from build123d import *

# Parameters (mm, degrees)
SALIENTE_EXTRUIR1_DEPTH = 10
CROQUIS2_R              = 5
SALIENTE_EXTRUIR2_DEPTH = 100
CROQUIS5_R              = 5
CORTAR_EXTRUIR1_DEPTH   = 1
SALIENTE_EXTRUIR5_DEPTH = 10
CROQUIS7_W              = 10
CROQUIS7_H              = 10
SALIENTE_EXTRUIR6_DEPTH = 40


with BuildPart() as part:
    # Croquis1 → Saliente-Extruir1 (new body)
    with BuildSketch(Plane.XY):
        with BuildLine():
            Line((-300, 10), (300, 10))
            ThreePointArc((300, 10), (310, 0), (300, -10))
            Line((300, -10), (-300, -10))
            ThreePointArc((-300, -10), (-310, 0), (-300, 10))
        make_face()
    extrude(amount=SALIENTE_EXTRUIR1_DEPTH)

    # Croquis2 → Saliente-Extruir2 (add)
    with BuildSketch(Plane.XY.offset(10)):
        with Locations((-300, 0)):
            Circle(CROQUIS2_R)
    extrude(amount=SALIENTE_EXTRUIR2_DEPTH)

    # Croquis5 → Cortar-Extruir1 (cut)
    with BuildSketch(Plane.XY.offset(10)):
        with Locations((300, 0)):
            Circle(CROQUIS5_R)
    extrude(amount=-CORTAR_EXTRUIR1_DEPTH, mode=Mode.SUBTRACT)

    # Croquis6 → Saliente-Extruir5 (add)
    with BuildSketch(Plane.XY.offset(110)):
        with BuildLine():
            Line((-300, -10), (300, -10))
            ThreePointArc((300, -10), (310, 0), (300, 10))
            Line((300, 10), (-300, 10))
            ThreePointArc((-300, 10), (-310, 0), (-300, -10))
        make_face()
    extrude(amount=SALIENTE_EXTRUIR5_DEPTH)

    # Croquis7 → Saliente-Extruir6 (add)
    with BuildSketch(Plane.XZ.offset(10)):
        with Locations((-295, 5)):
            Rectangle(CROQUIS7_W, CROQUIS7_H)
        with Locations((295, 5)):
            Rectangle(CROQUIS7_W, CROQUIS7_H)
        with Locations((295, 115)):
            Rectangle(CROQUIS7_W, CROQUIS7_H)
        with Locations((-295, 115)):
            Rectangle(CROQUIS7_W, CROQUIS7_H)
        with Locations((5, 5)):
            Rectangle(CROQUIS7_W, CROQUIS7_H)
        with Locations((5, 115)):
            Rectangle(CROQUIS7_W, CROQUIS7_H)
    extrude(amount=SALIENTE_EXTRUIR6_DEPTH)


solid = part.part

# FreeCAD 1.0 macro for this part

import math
import FreeCAD as App
import Part
import Sketcher
from FreeCAD import Vector

doc = App.newDocument("Part")
body = doc.addObject("PartDesign::Body", "Body")

# Sketch on XY plane
sketch1 = body.newObject("Sketcher::SketchObject", "Sketch")
sketch1.AttachmentSupport = (doc.getObject("XY_Plane"), [""])
sketch1.MapMode = "FlatFace"
sketch1.addGeometry([
    Part.LineSegment(Vector(300, 10, 0), Vector(-300, 10, 0)),
    Part.ArcOfCircle(Part.Circle(Vector(-300, 0, 0), Vector(0, 0, 1), 10), math.radians(90), math.radians(270)),
    Part.LineSegment(Vector(-300, -10, 0), Vector(300, -10, 0)),
    Part.ArcOfCircle(Part.Circle(Vector(300, 0, 0), Vector(0, 0, 1), 10), math.radians(-90), math.radians(90)),
], False)
sketch1.addConstraint([
    Sketcher.Constraint("Tangent", 0, 2, 1, 1),
    Sketcher.Constraint("Tangent", 1, 2, 2, 1),
    Sketcher.Constraint("Tangent", 2, 2, 3, 1),
    Sketcher.Constraint("Tangent", 3, 2, 0, 1),
    Sketcher.Constraint("Horizontal", 0),
    Sketcher.Constraint("Horizontal", 2),
    Sketcher.Constraint("Symmetric", 1, 3, 3, 3, -1, 1),
    Sketcher.Constraint("Radius", 1, 10.0),
    Sketcher.Constraint("DistanceX", 0, 2, 0, 1, 600.0),
])
pad1 = body.newObject("PartDesign::Pad", "Pad")
pad1.Profile = sketch1
pad1.Length = 10

# Sketch on XY plane
sketch2 = body.newObject("Sketcher::SketchObject", "Sketch001")
sketch2.AttachmentSupport = (doc.getObject("XY_Plane"), [""])
sketch2.MapMode = "FlatFace"
sketch2.AttachmentOffset = App.Placement(Vector(0, 0, 10), App.Rotation())
sketch2.addGeometry(Part.Circle(Vector(-300, 0, 0), Vector(0, 0, 1), 5), False)
sketch2.addConstraint([
    Sketcher.Constraint("PointOnObject", 0, 3, -1),
    Sketcher.Constraint("Diameter", 0, 10.0),
    Sketcher.Constraint("DistanceX", 0, 3, -1, 1, 300.0),
])
pad2 = body.newObject("PartDesign::Pad", "Pad001")
pad2.Profile = sketch2
pad2.Length = 100

# Sketch on XY plane
sketch3 = body.newObject("Sketcher::SketchObject", "Sketch002")
sketch3.AttachmentSupport = (doc.getObject("XY_Plane"), [""])
sketch3.MapMode = "FlatFace"
sketch3.AttachmentOffset = App.Placement(Vector(0, 0, 10), App.Rotation())
sketch3.addGeometry(Part.Circle(Vector(300, 0, 0), Vector(0, 0, 1), 5), False)
sketch3.addConstraint([
    Sketcher.Constraint("PointOnObject", 0, 3, -1),
    Sketcher.Constraint("Diameter", 0, 10.0),
    Sketcher.Constraint("DistanceX", -1, 1, 0, 3, 300.0),
])
pocket1 = body.newObject("PartDesign::Pocket", "Pocket")
pocket1.Profile = sketch3
pocket1.Length = 1

# Sketch on XY plane
sketch4 = body.newObject("Sketcher::SketchObject", "Sketch003")
sketch4.AttachmentSupport = (doc.getObject("XY_Plane"), [""])
sketch4.MapMode = "FlatFace"
sketch4.AttachmentOffset = App.Placement(Vector(0, 0, 110), App.Rotation())
sketch4.addGeometry([
    Part.LineSegment(Vector(-300, -10, 0), Vector(300, -10, 0)),
    Part.ArcOfCircle(Part.Circle(Vector(300, 0, 0), Vector(0, 0, 1), 10), math.radians(-90), math.radians(90)),
    Part.LineSegment(Vector(300, 10, 0), Vector(-300, 10, 0)),
    Part.ArcOfCircle(Part.Circle(Vector(-300, 0, 0), Vector(0, 0, 1), 10), math.radians(90), math.radians(270)),
], False)
sketch4.addConstraint([
    Sketcher.Constraint("Tangent", 0, 2, 1, 1),
    Sketcher.Constraint("Tangent", 1, 2, 2, 1),
    Sketcher.Constraint("Tangent", 2, 2, 3, 1),
    Sketcher.Constraint("Tangent", 3, 2, 0, 1),
    Sketcher.Constraint("Horizontal", 0),
    Sketcher.Constraint("Horizontal", 2),
    Sketcher.Constraint("Symmetric", 1, 3, 3, 3, -1, 1),
    Sketcher.Constraint("Radius", 1, 10.0),
    Sketcher.Constraint("DistanceX", 0, 1, 0, 2, 600.0),
])
pad3 = body.newObject("PartDesign::Pad", "Pad002")
pad3.Profile = sketch4
pad3.Length = 10

# Sketch on XZ plane
sketch5 = body.newObject("Sketcher::SketchObject", "Sketch004")
sketch5.AttachmentSupport = (doc.getObject("XZ_Plane"), [""])
sketch5.MapMode = "FlatFace"
sketch5.AttachmentOffset = App.Placement(Vector(0, 0, 10), App.Rotation())
sketch5.addGeometry([
    Part.LineSegment(Vector(-300, 10, 0), Vector(-300, 0, 0)),  # 0
    Part.LineSegment(Vector(-300, 0, 0), Vector(-290, 0, 0)),  # 1
    Part.LineSegment(Vector(-290, 0, 0), Vector(-290, 10, 0)),  # 2
    Part.LineSegment(Vector(-290, 10, 0), Vector(-300, 10, 0)),  # 3
    Part.LineSegment(Vector(290, 10, 0), Vector(290, 0, 0)),  # 4
    Part.LineSegment(Vector(290, 0, 0), Vector(300, 0, 0)),  # 5
    Part.LineSegment(Vector(300, 0, 0), Vector(300, 10, 0)),  # 6
    Part.LineSegment(Vector(300, 10, 0), Vector(290, 10, 0)),  # 7
    Part.LineSegment(Vector(290, 120, 0), Vector(290, 110, 0)),  # 8
    Part.LineSegment(Vector(290, 110, 0), Vector(300, 110, 0)),  # 9
    Part.LineSegment(Vector(300, 110, 0), Vector(300, 120, 0)),  # 10
    Part.LineSegment(Vector(300, 120, 0), Vector(290, 120, 0)),  # 11
    Part.LineSegment(Vector(-300, 120, 0), Vector(-300, 110, 0)),  # 12
    Part.LineSegment(Vector(-300, 110, 0), Vector(-290, 110, 0)),  # 13
    Part.LineSegment(Vector(-290, 110, 0), Vector(-290, 120, 0)),  # 14
    Part.LineSegment(Vector(-290, 120, 0), Vector(-300, 120, 0)),  # 15
    Part.LineSegment(Vector(0, 10, 0), Vector(0, 0, 0)),  # 16
    Part.LineSegment(Vector(0, 0, 0), Vector(10, 0, 0)),  # 17
    Part.LineSegment(Vector(10, 0, 0), Vector(10, 10, 0)),  # 18
    Part.LineSegment(Vector(10, 10, 0), Vector(0, 10, 0)),  # 19
    Part.LineSegment(Vector(0, 120, 0), Vector(0, 110, 0)),  # 20
    Part.LineSegment(Vector(0, 110, 0), Vector(10, 110, 0)),  # 21
    Part.LineSegment(Vector(10, 110, 0), Vector(10, 120, 0)),  # 22
    Part.LineSegment(Vector(10, 120, 0), Vector(0, 120, 0)),  # 23
], False)
sketch5.addConstraint([
    Sketcher.Constraint("Coincident", 0, 2, 1, 1),
    Sketcher.Constraint("Coincident", 1, 2, 2, 1),
    Sketcher.Constraint("Coincident", 2, 2, 3, 1),
    Sketcher.Constraint("Coincident", 3, 2, 0, 1),
    Sketcher.Constraint("Coincident", 4, 2, 5, 1),
    Sketcher.Constraint("Coincident", 5, 2, 6, 1),
    Sketcher.Constraint("Coincident", 6, 2, 7, 1),
    Sketcher.Constraint("Coincident", 7, 2, 4, 1),
    Sketcher.Constraint("Coincident", 8, 2, 9, 1),
    Sketcher.Constraint("Coincident", 9, 2, 10, 1),
    Sketcher.Constraint("Coincident", 10, 2, 11, 1),
    Sketcher.Constraint("Coincident", 11, 2, 8, 1),
    Sketcher.Constraint("Coincident", 12, 2, 13, 1),
    Sketcher.Constraint("Coincident", 13, 2, 14, 1),
    Sketcher.Constraint("Coincident", 14, 2, 15, 1),
    Sketcher.Constraint("Coincident", 15, 2, 12, 1),
    Sketcher.Constraint("Coincident", 16, 2, 17, 1),
    Sketcher.Constraint("Coincident", 17, 2, 18, 1),
    Sketcher.Constraint("Coincident", 18, 2, 19, 1),
    Sketcher.Constraint("Coincident", 19, 2, 16, 1),
    Sketcher.Constraint("Coincident", 20, 2, 21, 1),
    Sketcher.Constraint("Coincident", 21, 2, 22, 1),
    Sketcher.Constraint("Coincident", 22, 2, 23, 1),
    Sketcher.Constraint("Coincident", 23, 2, 20, 1),
    Sketcher.Constraint("Vertical", 0),
    Sketcher.Constraint("Horizontal", 1),
    Sketcher.Constraint("Vertical", 2),
    Sketcher.Constraint("Horizontal", 3),
    Sketcher.Constraint("Vertical", 4),
    Sketcher.Constraint("Horizontal", 5),
    Sketcher.Constraint("Vertical", 6),
    Sketcher.Constraint("Horizontal", 7),
    Sketcher.Constraint("Vertical", 8),
    Sketcher.Constraint("Horizontal", 9),
    Sketcher.Constraint("Vertical", 10),
    Sketcher.Constraint("Horizontal", 11),
    Sketcher.Constraint("Vertical", 12),
    Sketcher.Constraint("Horizontal", 13),
    Sketcher.Constraint("Vertical", 14),
    Sketcher.Constraint("Horizontal", 15),
    Sketcher.Constraint("Vertical", 16),
    Sketcher.Constraint("Horizontal", 17),
    Sketcher.Constraint("Vertical", 18),
    Sketcher.Constraint("Horizontal", 19),
    Sketcher.Constraint("Vertical", 20),
    Sketcher.Constraint("Horizontal", 21),
    Sketcher.Constraint("Vertical", 22),
    Sketcher.Constraint("Horizontal", 23),
    Sketcher.Constraint("Coincident", 16, 2, -1, 1),
    Sketcher.Constraint("Symmetric", 1, 2, 4, 2, -1, 1),
    Sketcher.Constraint("Symmetric", 0, 2, 5, 2, -2),
    Sketcher.Constraint("Symmetric", 9, 2, 12, 2, -2),
    Sketcher.Constraint("Symmetric", 11, 2, 14, 2, -2),
    Sketcher.Constraint("PointOnObject", 20, 2, -2),
    Sketcher.Constraint("Horizontal", 3, 2, 6, 2),
    Sketcher.Constraint("Horizontal", 7, 2, 18, 2),
    Sketcher.Constraint("Horizontal", 13, 2, 20, 2),
    Sketcher.Constraint("Horizontal", 15, 2, 22, 2),
    Sketcher.Constraint("Vertical", 7, 2, 8, 2),
    Sketcher.Constraint("Vertical", 6, 2, 9, 2),
    Sketcher.Constraint("Vertical", 18, 2, 21, 2),
    Sketcher.Constraint("Equal", 15, 17),
    Sketcher.Constraint("Equal", 23, 0),
    Sketcher.Constraint("Equal", 6, 8),
    Sketcher.Constraint("DistanceX", 1, 1, 1, 2, 10.0),
    Sketcher.Constraint("DistanceX", 0, 2, -1, 1, 300.0),
    Sketcher.Constraint("DistanceY", -1, 1, 8, 2, 110.0),
])
pad4 = body.newObject("PartDesign::Pad", "Pad003")
pad4.Profile = sketch5
pad4.Length = 40

doc.recompute()
